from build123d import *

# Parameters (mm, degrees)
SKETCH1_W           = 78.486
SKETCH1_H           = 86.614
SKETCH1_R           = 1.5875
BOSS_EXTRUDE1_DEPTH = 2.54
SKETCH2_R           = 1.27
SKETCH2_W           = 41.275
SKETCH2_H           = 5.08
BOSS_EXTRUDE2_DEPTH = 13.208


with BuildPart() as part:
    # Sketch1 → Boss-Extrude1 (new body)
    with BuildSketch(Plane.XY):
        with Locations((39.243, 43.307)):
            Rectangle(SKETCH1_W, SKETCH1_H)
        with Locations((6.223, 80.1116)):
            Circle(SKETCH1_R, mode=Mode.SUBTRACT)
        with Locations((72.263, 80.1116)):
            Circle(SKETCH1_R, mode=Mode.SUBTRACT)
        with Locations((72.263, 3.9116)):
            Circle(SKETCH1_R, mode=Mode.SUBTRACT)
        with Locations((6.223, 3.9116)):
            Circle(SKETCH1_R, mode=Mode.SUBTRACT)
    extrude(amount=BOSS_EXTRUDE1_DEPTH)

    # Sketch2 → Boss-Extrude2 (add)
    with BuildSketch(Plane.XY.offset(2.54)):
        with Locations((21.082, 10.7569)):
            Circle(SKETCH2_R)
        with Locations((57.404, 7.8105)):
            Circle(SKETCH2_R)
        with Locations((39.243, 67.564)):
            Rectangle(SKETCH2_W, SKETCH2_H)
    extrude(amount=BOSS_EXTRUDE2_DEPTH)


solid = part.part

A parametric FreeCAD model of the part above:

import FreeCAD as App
import Part
import Sketcher

V = App.Vector
Q = App.Units.Quantity

doc = App.newDocument("Part")
body = doc.addObject("PartDesign::Body", "Body")

sketch1 = body.newObject("Sketcher::SketchObject", "Sketch")
sketch1.AttachmentSupport = (doc.getObject("XY_Plane"), [""])
sketch1.MapMode = "FlatFace"
sketch1.addGeometry([
    Part.LineSegment(V(0, 86.6, 0), V(0, 0, 0)),
    Part.LineSegment(V(0, 0, 0), V(78.5, 0, 0)),
    Part.LineSegment(V(78.5, 0, 0), V(78.5, 86.6, 0)),
    Part.LineSegment(V(78.5, 86.6, 0), V(0, 86.6, 0)),
    Part.Circle(V(6.2, 3.9, 0), V(0, 0, 1), 1.6),
    Part.Circle(V(72.3, 3.9, 0), V(0, 0, 1), 1.6),
    Part.Circle(V(6.2, 80.1, 0), V(0, 0, 1), 1.6),
    Part.Circle(V(72.3, 80.1, 0), V(0, 0, 1), 1.6),
], False)
sketch1.addConstraint([
    Sketcher.Constraint("Coincident", 0, 2, 1, 1),
    Sketcher.Constraint("Coincident", 1, 2, 2, 1),
    Sketcher.Constraint("Coincident", 2, 2, 3, 1),
    Sketcher.Constraint("Coincident", 3, 2, 0, 1),
    Sketcher.Constraint("Vertical", 0),
    Sketcher.Constraint("Horizontal", 1),
    Sketcher.Constraint("Vertical", 2),
    Sketcher.Constraint("Horizontal", 3),
    Sketcher.Constraint("Coincident", 0, 2, -1, 1),
    Sketcher.Constraint("Equal", 4, 5),
    Sketcher.Constraint("Equal", 5, 6),
    Sketcher.Constraint("Equal", 6, 7),
    Sketcher.Constraint("Horizontal", 4, 3, 5, 3),
    Sketcher.Constraint("Horizontal", 6, 3, 7, 3),
    Sketcher.Constraint("Vertical", 4, 3, 6, 3),
    Sketcher.Constraint("Vertical", 5, 3, 7, 3),
    Sketcher.Constraint("Diameter", 4, Q("0.125 in")),
    Sketcher.Constraint("DistanceY", 4, 3, 6, 3, Q("3 in")),
    Sketcher.Constraint("DistanceX", 1, 1, 1, 2, Q("3.09 in")),
    Sketcher.Constraint("DistanceY", 0, 2, 0, 1, Q("3.41 in")),
    Sketcher.Constraint("DistanceX", 4, 3, 5, 3, Q("2.6 in")),
    Sketcher.Constraint("DistanceX", -1, 1, 4, 3, Q("0.245 in")),
    Sketcher.Constraint("DistanceY", -1, 1, 4, 3, Q("0.154 in")),
])
pad1 = body.newObject("PartDesign::Pad", "Pad")
pad1.Profile = sketch1
pad1.Length = Q("0.1 in")

sketch2 = body.newObject("Sketcher::SketchObject", "Sketch001")
sketch2.AttachmentSupport = (doc.getObject("XY_Plane"), [""])
sketch2.MapMode = "FlatFace"
sketch2.AttachmentOffset = App.Placement(V(0, 0, 0.1 * 25.4), App.Rotation())
sketch2.addGeometry([
    Part.Circle(V(21.1, 10.8, 0), V(0, 0, 1), 1.3),
    Part.Circle(V(57.4, 7.8, 0), V(0, 0, 1), 1.3),
    Part.LineSegment(V(18.6, 70.1, 0), V(18.6, 65, 0)),
    Part.LineSegment(V(18.6, 65, 0), V(59.9, 65, 0)),
    Part.LineSegment(V(59.9, 65, 0), V(59.9, 70.1, 0)),
    Part.LineSegment(V(59.9, 70.1, 0), V(18.6, 70.1, 0)),
], False)
sketch2.addConstraint([
    Sketcher.Constraint("Coincident", 2, 2, 3, 1),
    Sketcher.Constraint("Coincident", 3, 2, 4, 1),
    Sketcher.Constraint("Coincident", 4, 2, 5, 1),
    Sketcher.Constraint("Coincident", 5, 2, 2, 1),
    Sketcher.Constraint("Vertical", 2),
    Sketcher.Constraint("Horizontal", 3),
    Sketcher.Constraint("Vertical", 4),
    Sketcher.Constraint("Horizontal", 5),
    Sketcher.Constraint("Equal", 0, 1),
    Sketcher.Constraint("Diameter", 0, Q("0.1 in")),
    Sketcher.Constraint("DistanceY", 2, 2, 2, 1, Q("0.2 in")),
    Sketcher.Constraint("DistanceX", 3, 1, 3, 2, Q("1.625 in")),
    Sketcher.Constraint("DistanceX", -1, 1, 0, 3, Q("0.83 in")),
    Sketcher.Constraint("DistanceX", -1, 1, 1, 3, Q("2.26 in")),
    Sketcher.Constraint("DistanceY", -1, 1, 2, 2, Q("2.56 in")),
    Sketcher.Constraint("DistanceY", 1, 3, 0, 3, Q("0.116 in")),
    Sketcher.Constraint("DistanceY", -1, 1, 0, 3, Q("0.4235 in")),
    Sketcher.Constraint("DistanceX", -1, 1, 2, 2, Q("0.7325 in")),
])
pad2 = body.newObject("PartDesign::Pad", "Pad001")
pad2.Profile = sketch2
pad2.Length = Q("0.52 in")

doc.recompute()
